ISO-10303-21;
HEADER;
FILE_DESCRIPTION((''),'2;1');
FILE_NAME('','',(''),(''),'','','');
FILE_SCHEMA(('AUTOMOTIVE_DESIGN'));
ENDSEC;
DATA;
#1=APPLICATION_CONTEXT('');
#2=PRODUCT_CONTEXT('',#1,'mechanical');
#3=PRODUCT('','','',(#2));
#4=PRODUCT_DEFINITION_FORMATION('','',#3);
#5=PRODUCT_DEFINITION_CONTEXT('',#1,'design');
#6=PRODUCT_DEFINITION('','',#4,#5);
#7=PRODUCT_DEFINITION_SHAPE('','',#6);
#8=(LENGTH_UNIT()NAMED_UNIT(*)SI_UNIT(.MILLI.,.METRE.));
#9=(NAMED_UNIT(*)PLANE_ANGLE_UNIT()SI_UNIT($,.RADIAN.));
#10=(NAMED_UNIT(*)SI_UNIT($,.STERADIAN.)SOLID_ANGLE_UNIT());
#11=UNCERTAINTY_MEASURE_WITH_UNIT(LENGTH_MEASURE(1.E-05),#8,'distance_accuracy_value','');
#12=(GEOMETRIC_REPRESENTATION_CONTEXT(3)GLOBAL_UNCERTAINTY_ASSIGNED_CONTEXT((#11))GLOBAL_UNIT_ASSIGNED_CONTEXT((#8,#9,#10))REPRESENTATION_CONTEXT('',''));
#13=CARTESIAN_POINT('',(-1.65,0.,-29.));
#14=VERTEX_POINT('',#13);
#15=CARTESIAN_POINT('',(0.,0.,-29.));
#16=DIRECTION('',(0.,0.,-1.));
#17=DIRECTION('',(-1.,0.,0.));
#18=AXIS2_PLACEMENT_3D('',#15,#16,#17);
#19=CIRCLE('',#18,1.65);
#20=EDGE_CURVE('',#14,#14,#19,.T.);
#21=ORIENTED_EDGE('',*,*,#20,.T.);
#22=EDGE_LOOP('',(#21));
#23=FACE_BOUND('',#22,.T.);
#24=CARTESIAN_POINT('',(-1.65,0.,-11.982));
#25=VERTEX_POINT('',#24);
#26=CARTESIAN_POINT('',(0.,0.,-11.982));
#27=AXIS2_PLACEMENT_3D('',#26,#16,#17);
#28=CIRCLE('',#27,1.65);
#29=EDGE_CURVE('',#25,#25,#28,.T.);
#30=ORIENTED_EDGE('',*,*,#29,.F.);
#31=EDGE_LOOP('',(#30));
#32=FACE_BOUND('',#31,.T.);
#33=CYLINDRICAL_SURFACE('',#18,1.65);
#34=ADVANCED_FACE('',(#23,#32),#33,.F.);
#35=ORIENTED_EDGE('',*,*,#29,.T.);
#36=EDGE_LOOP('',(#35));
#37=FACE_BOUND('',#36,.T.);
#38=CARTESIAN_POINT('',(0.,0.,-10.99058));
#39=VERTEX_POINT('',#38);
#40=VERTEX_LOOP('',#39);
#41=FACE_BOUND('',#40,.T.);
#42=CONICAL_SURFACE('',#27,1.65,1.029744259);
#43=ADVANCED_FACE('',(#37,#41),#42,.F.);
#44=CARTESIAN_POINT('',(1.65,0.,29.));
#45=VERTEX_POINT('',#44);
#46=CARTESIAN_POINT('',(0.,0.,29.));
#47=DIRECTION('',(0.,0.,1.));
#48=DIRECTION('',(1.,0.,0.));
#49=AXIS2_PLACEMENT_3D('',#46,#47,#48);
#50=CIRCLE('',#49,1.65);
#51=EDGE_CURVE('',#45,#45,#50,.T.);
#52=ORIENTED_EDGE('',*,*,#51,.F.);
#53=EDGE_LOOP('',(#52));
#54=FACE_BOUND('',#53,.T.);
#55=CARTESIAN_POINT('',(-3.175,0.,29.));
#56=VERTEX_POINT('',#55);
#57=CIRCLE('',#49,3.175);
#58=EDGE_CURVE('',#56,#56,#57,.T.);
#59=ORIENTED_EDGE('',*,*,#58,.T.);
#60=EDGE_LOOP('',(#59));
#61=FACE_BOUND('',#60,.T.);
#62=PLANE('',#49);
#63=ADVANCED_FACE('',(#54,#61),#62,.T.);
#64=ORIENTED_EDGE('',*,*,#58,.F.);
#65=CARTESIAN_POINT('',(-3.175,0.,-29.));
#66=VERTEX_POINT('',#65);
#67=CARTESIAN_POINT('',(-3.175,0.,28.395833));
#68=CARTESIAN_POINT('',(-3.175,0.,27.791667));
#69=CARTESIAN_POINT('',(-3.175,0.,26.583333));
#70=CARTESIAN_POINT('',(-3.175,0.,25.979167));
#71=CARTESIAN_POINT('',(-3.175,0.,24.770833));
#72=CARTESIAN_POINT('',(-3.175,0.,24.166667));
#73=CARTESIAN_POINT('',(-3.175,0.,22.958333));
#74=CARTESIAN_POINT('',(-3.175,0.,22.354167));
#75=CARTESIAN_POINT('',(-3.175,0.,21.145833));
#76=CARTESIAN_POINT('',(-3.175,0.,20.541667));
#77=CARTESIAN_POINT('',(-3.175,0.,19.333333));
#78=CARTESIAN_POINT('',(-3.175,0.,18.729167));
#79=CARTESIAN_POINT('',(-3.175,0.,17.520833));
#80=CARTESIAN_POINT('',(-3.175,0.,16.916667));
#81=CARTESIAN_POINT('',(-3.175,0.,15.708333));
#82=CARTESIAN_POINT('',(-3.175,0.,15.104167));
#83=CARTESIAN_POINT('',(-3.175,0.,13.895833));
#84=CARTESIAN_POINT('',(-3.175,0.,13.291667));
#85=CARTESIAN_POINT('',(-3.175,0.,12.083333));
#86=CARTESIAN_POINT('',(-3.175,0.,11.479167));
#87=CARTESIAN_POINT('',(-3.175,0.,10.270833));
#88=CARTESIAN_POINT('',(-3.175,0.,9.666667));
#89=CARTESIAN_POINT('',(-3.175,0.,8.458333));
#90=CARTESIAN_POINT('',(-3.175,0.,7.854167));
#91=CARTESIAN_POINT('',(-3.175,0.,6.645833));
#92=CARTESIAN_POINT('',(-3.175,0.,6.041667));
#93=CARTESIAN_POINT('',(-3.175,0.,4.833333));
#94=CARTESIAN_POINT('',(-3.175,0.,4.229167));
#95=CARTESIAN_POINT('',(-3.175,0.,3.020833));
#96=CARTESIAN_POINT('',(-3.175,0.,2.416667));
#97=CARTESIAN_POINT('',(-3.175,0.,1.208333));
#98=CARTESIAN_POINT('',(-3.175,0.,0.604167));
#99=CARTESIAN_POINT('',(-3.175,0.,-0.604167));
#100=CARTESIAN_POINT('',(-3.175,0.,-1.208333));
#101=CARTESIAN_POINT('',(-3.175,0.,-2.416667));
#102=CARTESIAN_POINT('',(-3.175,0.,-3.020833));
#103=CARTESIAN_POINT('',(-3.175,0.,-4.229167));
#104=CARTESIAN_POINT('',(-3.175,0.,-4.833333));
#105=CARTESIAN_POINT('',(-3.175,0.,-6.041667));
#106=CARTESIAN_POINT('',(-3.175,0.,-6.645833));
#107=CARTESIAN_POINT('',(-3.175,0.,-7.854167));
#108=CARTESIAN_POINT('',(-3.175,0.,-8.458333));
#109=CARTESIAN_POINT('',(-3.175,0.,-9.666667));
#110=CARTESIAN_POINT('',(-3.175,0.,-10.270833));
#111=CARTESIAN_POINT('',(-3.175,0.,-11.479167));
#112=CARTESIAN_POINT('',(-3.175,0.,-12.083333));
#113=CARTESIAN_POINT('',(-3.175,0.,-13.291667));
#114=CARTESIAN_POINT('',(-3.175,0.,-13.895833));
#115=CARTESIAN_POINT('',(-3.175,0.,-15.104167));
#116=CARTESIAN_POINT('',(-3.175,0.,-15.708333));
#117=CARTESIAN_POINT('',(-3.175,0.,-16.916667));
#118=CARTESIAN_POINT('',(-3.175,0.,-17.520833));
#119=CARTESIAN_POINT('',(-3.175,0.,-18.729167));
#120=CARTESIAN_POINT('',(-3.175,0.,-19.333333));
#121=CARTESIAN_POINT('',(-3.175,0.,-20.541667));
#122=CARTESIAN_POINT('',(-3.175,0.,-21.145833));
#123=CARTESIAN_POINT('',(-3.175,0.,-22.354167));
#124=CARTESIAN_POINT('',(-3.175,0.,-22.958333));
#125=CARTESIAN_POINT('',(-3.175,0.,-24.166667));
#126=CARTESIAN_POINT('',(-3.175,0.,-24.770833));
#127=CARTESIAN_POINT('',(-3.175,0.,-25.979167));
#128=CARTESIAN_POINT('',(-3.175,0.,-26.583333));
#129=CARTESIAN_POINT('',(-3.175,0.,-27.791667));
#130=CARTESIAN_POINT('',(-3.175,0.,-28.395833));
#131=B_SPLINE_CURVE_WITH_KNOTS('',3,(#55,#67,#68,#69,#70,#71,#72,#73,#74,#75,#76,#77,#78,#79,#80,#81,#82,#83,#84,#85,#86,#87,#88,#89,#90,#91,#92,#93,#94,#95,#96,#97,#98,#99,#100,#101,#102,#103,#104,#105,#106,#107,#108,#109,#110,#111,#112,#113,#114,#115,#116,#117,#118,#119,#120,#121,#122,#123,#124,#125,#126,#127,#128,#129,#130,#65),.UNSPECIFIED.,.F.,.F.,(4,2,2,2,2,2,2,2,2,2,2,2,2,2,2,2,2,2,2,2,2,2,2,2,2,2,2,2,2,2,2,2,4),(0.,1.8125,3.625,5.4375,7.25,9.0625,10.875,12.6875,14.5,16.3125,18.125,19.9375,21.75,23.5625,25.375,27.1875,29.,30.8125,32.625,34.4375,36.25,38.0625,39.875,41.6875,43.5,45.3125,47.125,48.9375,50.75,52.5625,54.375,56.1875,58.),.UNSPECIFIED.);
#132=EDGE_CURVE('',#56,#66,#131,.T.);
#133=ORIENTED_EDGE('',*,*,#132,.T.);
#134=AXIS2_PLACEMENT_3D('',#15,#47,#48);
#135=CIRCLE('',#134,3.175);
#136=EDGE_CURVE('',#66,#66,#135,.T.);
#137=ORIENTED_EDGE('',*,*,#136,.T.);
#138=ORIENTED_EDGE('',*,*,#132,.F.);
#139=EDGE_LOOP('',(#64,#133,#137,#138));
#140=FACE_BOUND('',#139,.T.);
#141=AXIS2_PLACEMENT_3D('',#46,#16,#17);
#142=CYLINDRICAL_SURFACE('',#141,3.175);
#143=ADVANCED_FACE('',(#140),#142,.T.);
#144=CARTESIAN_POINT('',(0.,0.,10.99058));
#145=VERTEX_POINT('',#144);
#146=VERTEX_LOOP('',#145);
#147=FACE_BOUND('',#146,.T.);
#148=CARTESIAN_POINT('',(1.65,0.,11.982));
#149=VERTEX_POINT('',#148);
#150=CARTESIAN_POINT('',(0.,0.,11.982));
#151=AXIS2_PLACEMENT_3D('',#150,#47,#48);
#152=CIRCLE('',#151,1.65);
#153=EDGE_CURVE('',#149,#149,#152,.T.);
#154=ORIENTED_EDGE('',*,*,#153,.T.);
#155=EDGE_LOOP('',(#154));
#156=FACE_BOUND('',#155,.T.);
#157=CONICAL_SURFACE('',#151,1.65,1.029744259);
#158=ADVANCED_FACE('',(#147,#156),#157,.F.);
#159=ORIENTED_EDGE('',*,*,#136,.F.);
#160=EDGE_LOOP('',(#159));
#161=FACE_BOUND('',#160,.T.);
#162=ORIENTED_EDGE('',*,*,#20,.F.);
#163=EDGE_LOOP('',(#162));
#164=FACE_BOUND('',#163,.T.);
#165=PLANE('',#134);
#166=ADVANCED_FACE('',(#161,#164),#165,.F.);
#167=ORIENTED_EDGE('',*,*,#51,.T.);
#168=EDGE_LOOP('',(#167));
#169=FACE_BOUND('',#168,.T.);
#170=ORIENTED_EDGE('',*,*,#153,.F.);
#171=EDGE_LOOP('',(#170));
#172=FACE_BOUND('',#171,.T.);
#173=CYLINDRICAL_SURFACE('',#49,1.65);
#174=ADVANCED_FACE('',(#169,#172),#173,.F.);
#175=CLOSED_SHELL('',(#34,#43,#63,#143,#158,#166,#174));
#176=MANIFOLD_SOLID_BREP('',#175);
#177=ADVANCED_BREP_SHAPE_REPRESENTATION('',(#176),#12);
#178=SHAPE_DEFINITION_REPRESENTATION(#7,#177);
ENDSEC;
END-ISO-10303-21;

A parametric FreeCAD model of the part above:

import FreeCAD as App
import Part
import Sketcher
Q = App.Units.Quantity

doc = App.newDocument("Part")
params = doc.addObject("Spreadsheet::Sheet", "Params")
for row, (alias, value) in enumerate([
    ("sketch1_diameter", "0.25 in"),
    ("pad1_length", "58 mm"),
    ("sketch2_height", "0.67 in"),
    ("groove_angle", "360 deg"),
], start=1):
    params.set(f"A{row}", alias)
    params.set(f"B{row}", "=" + value)
    params.setAlias(f"B{row}", alias)

body = doc.addObject("PartDesign::Body", "Body")

sketch1 = body.newObject("Sketcher::SketchObject", "Sketch")
sketch1.AttachmentSupport = (doc.getObject("XY_Plane"), [""])
sketch1.MapMode = "FlatFace"
sketch1.addGeometry(Part.Circle(App.Vector(0, 0, 0), App.Vector(0, 0, 1), 3.175), False)
sketch1.addConstraint([
    Sketcher.Constraint("Coincident", 0, 3, -1, 1),
    Sketcher.Constraint("Diameter", 0, Q("0.25 in")),
])
sketch1.setExpression("Constraints[1]", "Params.sketch1_diameter")
pad1 = body.newObject("PartDesign::Pad", "Pad")
pad1.Profile = sketch1
pad1.setExpression("Length", "Params.pad1_length")
pad1.Midplane = True

sketch2 = body.newObject("Sketcher::SketchObject", "Sketch001")
sketch2.AttachmentSupport = (doc.getObject("YZ_Plane"), [""])
sketch2.MapMode = "FlatFace"
sketch2.addGeometry([
    Part.LineSegment(App.Vector(0, 10.99058, 0), App.Vector(0, 29, 0)),
    Part.LineSegment(App.Vector(0, 29, 0), App.Vector(-1.65, 29, 0)),
    Part.LineSegment(App.Vector(-1.65, 29, 0), App.Vector(-1.65, 11.982, 0)),
    Part.LineSegment(App.Vector(-1.65, 11.982, 0), App.Vector(0, 10.99058, 0)),
], False)
sketch2.addConstraint([
    Sketcher.Constraint("Coincident", 0, 2, 1, 1),
    Sketcher.Constraint("Coincident", 1, 2, 2, 1),
    Sketcher.Constraint("Coincident", 2, 2, 3, 1),
    Sketcher.Constraint("Coincident", 3, 2, 0, 1),
    Sketcher.Constraint("Vertical", 0),
    Sketcher.Constraint("Horizontal", 1),
    Sketcher.Constraint("Vertical", 2),
    Sketcher.Constraint("PointOnObject", 0, 2, -2),
    Sketcher.Constraint("Angle", 3, Q("-31 deg")),
    Sketcher.Constraint("DistanceY", 2, 2, 2, 1, Q("0.67 in")),
    Sketcher.Constraint("DistanceX", 1, 2, 1, 1, 1.65),
    Sketcher.Constraint("DistanceY", -1, 1, 3, 2, Q("0.4327 in")),
])
sketch2.setExpression("Constraints[9]", "Params.sketch2_height")
groove = body.newObject("PartDesign::Groove", "Groove")
groove.Profile = sketch2
groove.ReferenceAxis = (sketch2, ["V_Axis"])
groove.setExpression("Angle", "Params.groove_angle")
doc.recompute()

mirrored = body.newObject("PartDesign::Mirrored", "Mirrored")
mirrored.Originals = [groove]
mirrored.MirrorPlane = (doc.getObject("XY_Plane"), [""])
body.Tip = mirrored

doc.recompute()
